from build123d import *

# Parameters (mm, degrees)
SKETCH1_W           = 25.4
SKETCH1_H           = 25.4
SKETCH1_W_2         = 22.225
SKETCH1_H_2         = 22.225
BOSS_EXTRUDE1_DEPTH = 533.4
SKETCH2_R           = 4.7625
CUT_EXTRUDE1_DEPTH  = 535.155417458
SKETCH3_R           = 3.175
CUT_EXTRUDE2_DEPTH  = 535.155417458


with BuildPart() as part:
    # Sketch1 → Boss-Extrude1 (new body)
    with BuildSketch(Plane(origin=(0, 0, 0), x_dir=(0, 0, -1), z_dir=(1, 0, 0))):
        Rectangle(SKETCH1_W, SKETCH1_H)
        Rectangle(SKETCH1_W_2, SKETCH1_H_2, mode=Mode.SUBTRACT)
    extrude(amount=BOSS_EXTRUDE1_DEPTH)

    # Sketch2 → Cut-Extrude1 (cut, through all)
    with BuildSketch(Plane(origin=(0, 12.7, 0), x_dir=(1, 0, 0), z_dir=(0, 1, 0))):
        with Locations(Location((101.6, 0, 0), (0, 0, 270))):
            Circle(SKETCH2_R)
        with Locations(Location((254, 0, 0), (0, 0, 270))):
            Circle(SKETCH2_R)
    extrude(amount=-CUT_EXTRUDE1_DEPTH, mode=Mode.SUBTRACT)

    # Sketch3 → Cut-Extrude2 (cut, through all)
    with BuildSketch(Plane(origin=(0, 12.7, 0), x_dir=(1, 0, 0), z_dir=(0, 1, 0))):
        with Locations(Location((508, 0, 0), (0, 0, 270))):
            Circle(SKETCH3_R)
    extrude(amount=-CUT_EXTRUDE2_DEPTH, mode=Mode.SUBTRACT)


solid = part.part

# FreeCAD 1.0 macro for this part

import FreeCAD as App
import Part
import Sketcher
from FreeCAD import Vector
Q = App.Units.Quantity


def add_polygon(sketch, points):
    """Adds a closed chain of lines whose ends are joined by coincident constraints."""
    first, n = sketch.GeometryCount, len(points)
    for a, b in zip(points, points[1:] + points[:1]):
        sketch.addGeometry(Part.LineSegment(App.Vector(*a, 0), App.Vector(*b, 0)), False)
    for i in range(n):
        sketch.addConstraint(Sketcher.Constraint("Coincident", first + i, 2, first + (i + 1) % n, 1))

doc = App.newDocument("Part")
body = doc.addObject("PartDesign::Body", "Body")

sketch1 = doc.addObject("Sketcher::SketchObject", "Sketch")
body.addObject(sketch1)
sketch1.AttachmentSupport = (doc.YZ_Plane, [""])
sketch1.MapMode = "FlatFace"
add_polygon(sketch1, [(12.7, 12.7), (-12.7, 12.7), (-12.7, -12.7), (12.7, -12.7)])
add_polygon(sketch1, [(-11.1125, -11.1125), (-11.1125, 11.1125), (11.1125, 11.1125), (11.1125, -11.1125)])
sketch1.addConstraint([
    Sketcher.Constraint("Horizontal", 0),
    Sketcher.Constraint("Vertical", 1),
    Sketcher.Constraint("Horizontal", 2),
    Sketcher.Constraint("Vertical", 3),
    Sketcher.Constraint("Vertical", 4),
    Sketcher.Constraint("Horizontal", 5),
    Sketcher.Constraint("Vertical", 6),
    Sketcher.Constraint("Horizontal", 7),
    Sketcher.Constraint("Symmetric", 0, 2, 2, 2, -1, 1),
    Sketcher.Constraint("Symmetric", 4, 2, 6, 2, -1, 1),
    Sketcher.Constraint("Equal", 2, 1),
    Sketcher.Constraint("Equal", 7, 4),
    Sketcher.Constraint("DistanceX", 0, 2, 0, 1, Q("1 in")),
    Sketcher.Constraint("DistanceX", 5, 1, 5, 2, Q("0.875 in")),
])
pad1 = doc.addObject("PartDesign::Pad", "Pad")
body.addObject(pad1)
pad1.Profile = sketch1
pad1.Length = Q("21 in")

sketch2 = doc.addObject("Sketcher::SketchObject", "Sketch001")
body.addObject(sketch2)
sketch2.AttachmentSupport = (doc.XZ_Plane, [""])
sketch2.MapMode = "FlatFace"
sketch2.AttachmentOffset = App.Placement(Vector(0, 0, -0.5 * 25.4), App.Rotation())
sketch2.addGeometry([
    Part.Circle(Vector(101.6, 0, 0), Vector(0, 0, 1), 4.7625),
    Part.Circle(Vector(254, 0, 0), Vector(0, 0, 1), 4.7625),
], False)
sketch2.addConstraint([
    Sketcher.Constraint("Equal", 0, 1),
    Sketcher.Constraint("PointOnObject", 0, 3, -1),
    Sketcher.Constraint("PointOnObject", 1, 3, -1),
    Sketcher.Constraint("Diameter", 0, Q("0.375 in")),
    Sketcher.Constraint("DistanceX", -1, 1, 0, 3, Q("4 in")),
    Sketcher.Constraint("DistanceX", -1, 1, 1, 3, Q("10 in")),
])
pocket1 = doc.addObject("PartDesign::Pocket", "Pocket")
body.addObject(pocket1)
pocket1.Profile = sketch2
pocket1.Type = "ThroughAll"
pocket1.Reversed = True

sketch3 = doc.addObject("Sketcher::SketchObject", "Sketch002")
body.addObject(sketch3)
sketch3.AttachmentSupport = (doc.XZ_Plane, [""])
sketch3.MapMode = "FlatFace"
sketch3.AttachmentOffset = App.Placement(Vector(0, 0, -0.5 * 25.4), App.Rotation())
sketch3.addGeometry(Part.Circle(Vector(508, 0, 0), Vector(0, 0, 1), 3.175), False)
sketch3.addConstraint([
    Sketcher.Constraint("PointOnObject", 0, 3, -1),
    Sketcher.Constraint("Diameter", 0, Q("0.25 in")),
    Sketcher.Constraint("DistanceX", -1, 1, 0, 3, Q("20 in")),
])
pocket2 = doc.addObject("PartDesign::Pocket", "Pocket001")
body.addObject(pocket2)
pocket2.Profile = sketch3
pocket2.Type = "ThroughAll"
pocket2.Reversed = True

doc.recompute()
